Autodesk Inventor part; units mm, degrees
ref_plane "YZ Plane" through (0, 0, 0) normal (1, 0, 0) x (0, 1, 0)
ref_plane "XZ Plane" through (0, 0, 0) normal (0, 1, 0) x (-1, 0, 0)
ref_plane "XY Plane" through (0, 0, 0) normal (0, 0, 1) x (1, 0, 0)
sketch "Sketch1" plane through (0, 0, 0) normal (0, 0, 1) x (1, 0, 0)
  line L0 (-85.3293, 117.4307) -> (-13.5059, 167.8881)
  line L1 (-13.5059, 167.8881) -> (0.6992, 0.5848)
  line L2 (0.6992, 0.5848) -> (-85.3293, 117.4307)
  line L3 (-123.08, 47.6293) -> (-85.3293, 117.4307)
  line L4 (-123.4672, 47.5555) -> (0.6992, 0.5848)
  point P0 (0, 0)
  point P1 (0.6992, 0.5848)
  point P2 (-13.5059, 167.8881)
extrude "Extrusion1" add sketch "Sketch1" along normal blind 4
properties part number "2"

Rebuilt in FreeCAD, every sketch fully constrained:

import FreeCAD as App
import Part
import Sketcher
from FreeCAD import Vector
Q = App.Units.Quantity


def add_polygon(sketch, points):
    """Adds a closed chain of lines whose ends are joined by coincident constraints."""
    first, n = sketch.GeometryCount, len(points)
    for a, b in zip(points, points[1:] + points[:1]):
        sketch.addGeometry(Part.LineSegment(App.Vector(*a, 0), App.Vector(*b, 0)), False)
    for i in range(n):
        sketch.addConstraint(Sketcher.Constraint("Coincident", first + i, 2, first + (i + 1) % n, 1))

doc = App.newDocument("Part")
body = doc.addObject("PartDesign::Body", "Body")

sketch1 = body.newObject("Sketcher::SketchObject", "Sketch")
sketch1.AttachmentSupport = (doc.getObject("XY_Plane"), [""])
sketch1.MapMode = "FlatFace"
add_polygon(sketch1, [(-13.5059, 167.8881), (-85.3293, 117.4307), (0.6992, 0.5848)])
sketch1.addConstraint([
    Sketcher.Constraint("Angle", 0, Q("-144.9112 deg")),
    Sketcher.Constraint("DistanceX", 2, 2, -1, 1, 13.506),
    Sketcher.Constraint("DistanceY", -1, 1, 2, 2, 167.888),
    Sketcher.Constraint("DistanceY", 1, 2, 0, 2, 116.846),
    Sketcher.Constraint("DistanceX", 2, 2, 1, 2, 14.205),
    Sketcher.Constraint("Distance", 0, 87.7756),
])
pad1 = body.newObject("PartDesign::Pad", "Pad")
pad1.Profile = sketch1
pad1.Length = 4

doc.recompute()
